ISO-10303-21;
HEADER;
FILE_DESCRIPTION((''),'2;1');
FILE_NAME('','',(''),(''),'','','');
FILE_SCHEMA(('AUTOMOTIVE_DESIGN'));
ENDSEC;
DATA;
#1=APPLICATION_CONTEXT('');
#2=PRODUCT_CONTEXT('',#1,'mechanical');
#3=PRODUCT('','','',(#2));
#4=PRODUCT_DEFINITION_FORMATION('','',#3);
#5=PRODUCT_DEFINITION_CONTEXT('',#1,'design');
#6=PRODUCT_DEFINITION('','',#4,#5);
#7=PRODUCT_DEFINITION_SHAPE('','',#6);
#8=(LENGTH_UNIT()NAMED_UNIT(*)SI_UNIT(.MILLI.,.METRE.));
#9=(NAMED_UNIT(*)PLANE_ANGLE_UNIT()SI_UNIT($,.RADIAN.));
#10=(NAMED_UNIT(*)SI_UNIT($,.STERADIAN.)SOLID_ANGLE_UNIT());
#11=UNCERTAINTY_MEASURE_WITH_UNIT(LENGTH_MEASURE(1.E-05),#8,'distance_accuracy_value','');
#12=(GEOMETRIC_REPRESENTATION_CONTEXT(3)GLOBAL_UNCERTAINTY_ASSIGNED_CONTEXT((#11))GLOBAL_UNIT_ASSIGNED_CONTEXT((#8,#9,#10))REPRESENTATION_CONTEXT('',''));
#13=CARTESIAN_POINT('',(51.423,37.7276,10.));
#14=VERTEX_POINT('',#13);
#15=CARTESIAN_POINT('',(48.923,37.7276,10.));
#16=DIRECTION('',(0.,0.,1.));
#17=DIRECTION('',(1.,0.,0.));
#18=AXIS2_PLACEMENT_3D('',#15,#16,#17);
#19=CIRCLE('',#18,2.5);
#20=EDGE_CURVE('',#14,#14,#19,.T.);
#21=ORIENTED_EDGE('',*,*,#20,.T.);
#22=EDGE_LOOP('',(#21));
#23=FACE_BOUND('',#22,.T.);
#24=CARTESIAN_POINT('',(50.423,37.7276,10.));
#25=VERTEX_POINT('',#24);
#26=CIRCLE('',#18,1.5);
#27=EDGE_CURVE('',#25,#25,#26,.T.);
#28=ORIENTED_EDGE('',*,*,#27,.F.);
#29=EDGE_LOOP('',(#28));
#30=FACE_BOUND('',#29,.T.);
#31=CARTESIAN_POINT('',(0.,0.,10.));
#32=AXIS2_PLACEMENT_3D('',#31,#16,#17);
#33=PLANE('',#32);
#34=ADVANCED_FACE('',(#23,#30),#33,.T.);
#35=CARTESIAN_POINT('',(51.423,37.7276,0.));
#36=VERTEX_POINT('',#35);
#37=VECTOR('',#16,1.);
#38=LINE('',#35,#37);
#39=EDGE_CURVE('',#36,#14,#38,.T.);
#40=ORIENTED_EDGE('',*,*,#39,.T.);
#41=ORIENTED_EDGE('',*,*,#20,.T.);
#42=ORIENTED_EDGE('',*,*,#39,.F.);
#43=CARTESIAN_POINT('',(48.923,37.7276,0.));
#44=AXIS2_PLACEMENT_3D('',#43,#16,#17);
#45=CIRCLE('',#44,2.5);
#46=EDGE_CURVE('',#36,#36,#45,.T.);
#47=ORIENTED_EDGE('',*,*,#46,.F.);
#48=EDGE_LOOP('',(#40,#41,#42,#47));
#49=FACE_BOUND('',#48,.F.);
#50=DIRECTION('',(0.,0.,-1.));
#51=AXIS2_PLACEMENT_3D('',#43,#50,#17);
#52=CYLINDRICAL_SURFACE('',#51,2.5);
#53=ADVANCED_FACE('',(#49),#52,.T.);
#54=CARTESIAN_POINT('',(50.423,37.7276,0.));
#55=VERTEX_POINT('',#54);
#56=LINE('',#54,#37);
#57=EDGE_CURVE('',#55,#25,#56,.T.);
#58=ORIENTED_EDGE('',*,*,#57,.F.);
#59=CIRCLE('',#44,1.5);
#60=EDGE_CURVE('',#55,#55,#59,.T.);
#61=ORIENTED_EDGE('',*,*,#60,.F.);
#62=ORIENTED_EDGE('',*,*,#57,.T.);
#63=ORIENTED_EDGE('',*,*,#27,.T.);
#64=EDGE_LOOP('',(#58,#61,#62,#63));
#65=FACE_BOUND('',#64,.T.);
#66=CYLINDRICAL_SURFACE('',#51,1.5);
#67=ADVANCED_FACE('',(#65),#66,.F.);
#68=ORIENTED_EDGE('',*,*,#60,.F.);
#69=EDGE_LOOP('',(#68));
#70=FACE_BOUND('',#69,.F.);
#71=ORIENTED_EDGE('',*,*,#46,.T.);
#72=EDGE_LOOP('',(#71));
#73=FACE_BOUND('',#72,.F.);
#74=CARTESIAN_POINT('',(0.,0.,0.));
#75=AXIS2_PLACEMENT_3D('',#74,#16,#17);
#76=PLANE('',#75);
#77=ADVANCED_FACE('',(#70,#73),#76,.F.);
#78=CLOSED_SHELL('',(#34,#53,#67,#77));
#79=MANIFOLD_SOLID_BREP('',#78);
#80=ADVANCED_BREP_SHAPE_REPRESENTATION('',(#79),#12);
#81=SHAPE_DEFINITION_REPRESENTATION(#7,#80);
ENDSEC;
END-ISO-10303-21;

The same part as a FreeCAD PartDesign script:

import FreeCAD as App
import Part
import Sketcher
from FreeCAD import Vector

doc = App.newDocument("Part")
body = doc.addObject("PartDesign::Body", "Body")

# Sketch on XY plane
sketch1 = body.newObject("Sketcher::SketchObject", "Sketch")
sketch1.AttachmentSupport = (doc.getObject("XY_Plane"), [""])
sketch1.MapMode = "FlatFace"
sketch1.addGeometry([
    Part.Circle(Vector(48.923, 37.7276, 0), Vector(0, 0, 1), 2.5),
    Part.Circle(Vector(48.923, 37.7276, 0), Vector(0, 0, 1), 1.5),
], False)
sketch1.addConstraint([
    Sketcher.Constraint("Coincident", 1, 3, 0, 3),
    Sketcher.Constraint("Diameter", 0, 5.0),
    Sketcher.Constraint("Diameter", 1, 3.0),
    Sketcher.Constraint("DistanceX", -1, 1, 0, 3, 48.923),
    Sketcher.Constraint("DistanceY", -1, 1, 0, 3, 37.7276),
])
pad1 = body.newObject("PartDesign::Pad", "Pad")
pad1.Profile = sketch1
pad1.Length = 10

doc.recompute()
